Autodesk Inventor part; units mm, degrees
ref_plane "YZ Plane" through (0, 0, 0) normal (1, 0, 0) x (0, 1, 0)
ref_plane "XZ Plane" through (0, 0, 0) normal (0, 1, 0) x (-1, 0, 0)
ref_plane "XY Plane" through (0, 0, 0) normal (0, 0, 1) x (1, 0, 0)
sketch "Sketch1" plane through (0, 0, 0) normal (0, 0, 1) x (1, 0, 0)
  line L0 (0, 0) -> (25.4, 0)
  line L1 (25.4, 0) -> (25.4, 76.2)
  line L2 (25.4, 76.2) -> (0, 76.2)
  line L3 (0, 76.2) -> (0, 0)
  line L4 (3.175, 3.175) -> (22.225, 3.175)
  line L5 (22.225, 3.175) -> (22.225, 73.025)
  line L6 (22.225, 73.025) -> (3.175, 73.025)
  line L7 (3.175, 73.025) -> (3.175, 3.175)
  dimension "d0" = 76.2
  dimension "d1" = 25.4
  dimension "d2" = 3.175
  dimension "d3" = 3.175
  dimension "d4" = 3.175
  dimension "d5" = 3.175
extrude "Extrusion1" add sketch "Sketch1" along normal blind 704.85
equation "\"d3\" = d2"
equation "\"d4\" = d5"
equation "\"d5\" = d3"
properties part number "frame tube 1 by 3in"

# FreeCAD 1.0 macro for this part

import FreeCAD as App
import Part
import Sketcher
Q = App.Units.Quantity


def add_polygon(sketch, points):
    """Adds a closed chain of lines whose ends are joined by coincident constraints."""
    first, n = sketch.GeometryCount, len(points)
    for a, b in zip(points, points[1:] + points[:1]):
        sketch.addGeometry(Part.LineSegment(App.Vector(*a, 0), App.Vector(*b, 0)), False)
    for i in range(n):
        sketch.addConstraint(Sketcher.Constraint("Coincident", first + i, 2, first + (i + 1) % n, 1))

doc = App.newDocument("Part")
body = doc.addObject("PartDesign::Body", "Body")

# Sketch on XY plane
sketch1 = body.newObject("Sketcher::SketchObject", "Sketch")
sketch1.AttachmentSupport = (doc.getObject("XY_Plane"), [""])
sketch1.MapMode = "FlatFace"
add_polygon(sketch1, [(0, 76.2), (0, 0), (25.4, 0), (25.4, 76.2)])  # lines 0-3
add_polygon(sketch1, [(22.225, 3.175), (3.175, 3.175), (3.175, 73.025), (22.225, 73.025)])  # lines 4-7
sketch1.addConstraint([
    Sketcher.Constraint("Vertical", 0),
    Sketcher.Constraint("Horizontal", 1),
    Sketcher.Constraint("Vertical", 2),
    Sketcher.Constraint("Horizontal", 3),
    Sketcher.Constraint("Horizontal", 4),
    Sketcher.Constraint("Vertical", 5),
    Sketcher.Constraint("Horizontal", 6),
    Sketcher.Constraint("Vertical", 7),
    Sketcher.Constraint("Coincident", 0, 2, -1, 1),
    Sketcher.Constraint("DistanceX", 1, 1, 1, 2, Q("1 in")),
    Sketcher.Constraint("DistanceY", 0, 2, 0, 1, Q("3 in")),
    Sketcher.Constraint("DistanceX", -1, 1, 4, 2, Q("0.125 in")),
    Sketcher.Constraint("DistanceY", -1, 1, 4, 2, Q("0.125 in")),
    Sketcher.Constraint("DistanceY", 5, 2, 3, 2, Q("0.125 in")),
    Sketcher.Constraint("DistanceX", 6, 2, 2, 2, Q("0.125 in")),
])
pad1 = body.newObject("PartDesign::Pad", "Pad")
pad1.Profile = sketch1
pad1.Length = Q("27.75 in")

doc.recompute()
